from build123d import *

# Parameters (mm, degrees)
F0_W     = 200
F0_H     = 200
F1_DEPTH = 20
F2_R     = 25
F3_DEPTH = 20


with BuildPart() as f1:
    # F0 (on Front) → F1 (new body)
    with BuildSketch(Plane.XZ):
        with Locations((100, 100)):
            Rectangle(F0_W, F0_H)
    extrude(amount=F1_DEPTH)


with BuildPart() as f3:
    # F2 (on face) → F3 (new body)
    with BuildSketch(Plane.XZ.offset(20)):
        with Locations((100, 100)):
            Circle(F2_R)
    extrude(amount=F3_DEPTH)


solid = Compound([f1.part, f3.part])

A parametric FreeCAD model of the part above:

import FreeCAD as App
import Part
import Sketcher

V = App.Vector
Q = App.Units.Quantity


def add_polygon(sketch, points):
    """Adds a closed chain of lines whose ends are joined by coincident constraints."""
    first, n = sketch.GeometryCount, len(points)
    for a, b in zip(points, points[1:] + points[:1]):
        sketch.addGeometry(Part.LineSegment(App.Vector(*a, 0), App.Vector(*b, 0)), False)
    for i in range(n):
        sketch.addConstraint(Sketcher.Constraint("Coincident", first + i, 2, first + (i + 1) % n, 1))

doc = App.newDocument("Part")
body = doc.addObject("PartDesign::Body", "Body")

# Sketch on XZ plane
sketch1 = body.newObject("Sketcher::SketchObject", "Sketch")
sketch1.AttachmentSupport = (doc.getObject("XZ_Plane"), [""])
sketch1.MapMode = "FlatFace"
add_polygon(sketch1, [(0, 200), (0, 0), (200, 0), (200, 200)])  # lines 0-3
sketch1.addConstraint(Sketcher.Constraint("Vertical", 0))
sketch1.addConstraint(Sketcher.Constraint("Horizontal", 1))
sketch1.addConstraint(Sketcher.Constraint("Vertical", 2))
sketch1.addConstraint(Sketcher.Constraint("Horizontal", 3))
sketch1.addConstraint(Sketcher.Constraint("Coincident", 0, 2, -1, 1))
sketch1.addConstraint(Sketcher.Constraint("Equal", 3, 0))
sketch1.addConstraint(Sketcher.Constraint("DistanceX", 1, 1, 1, 2, Q("200 mm")))
pad1 = body.newObject("PartDesign::Pad", "Pad")
pad1.Profile = sketch1
pad1.Length = 20
body2 = doc.addObject("PartDesign::Body", "Body001")

# Sketch on XZ plane
sketch2 = body2.newObject("Sketcher::SketchObject", "Sketch001")
sketch2.AttachmentSupport = (doc.getObject("XZ_Plane001"), [""])
sketch2.MapMode = "FlatFace"
sketch2.AttachmentOffset = App.Placement(V(0, 0, 20), App.Rotation())
sketch2.addGeometry(Part.Circle(V(100, 100, 0), V(0, 0, 1), 25), False)
sketch2.addConstraint(Sketcher.Constraint("Diameter", 0, Q("50 mm")))
sketch2.addConstraint(Sketcher.Constraint("DistanceX", -1, 1, 0, 3, Q("100 mm")))
sketch2.addConstraint(Sketcher.Constraint("DistanceY", -1, 1, 0, 3, Q("100 mm")))
pad2 = body2.newObject("PartDesign::Pad", "Pad001")
pad2.Profile = sketch2
pad2.Length = 20

doc.recompute()
